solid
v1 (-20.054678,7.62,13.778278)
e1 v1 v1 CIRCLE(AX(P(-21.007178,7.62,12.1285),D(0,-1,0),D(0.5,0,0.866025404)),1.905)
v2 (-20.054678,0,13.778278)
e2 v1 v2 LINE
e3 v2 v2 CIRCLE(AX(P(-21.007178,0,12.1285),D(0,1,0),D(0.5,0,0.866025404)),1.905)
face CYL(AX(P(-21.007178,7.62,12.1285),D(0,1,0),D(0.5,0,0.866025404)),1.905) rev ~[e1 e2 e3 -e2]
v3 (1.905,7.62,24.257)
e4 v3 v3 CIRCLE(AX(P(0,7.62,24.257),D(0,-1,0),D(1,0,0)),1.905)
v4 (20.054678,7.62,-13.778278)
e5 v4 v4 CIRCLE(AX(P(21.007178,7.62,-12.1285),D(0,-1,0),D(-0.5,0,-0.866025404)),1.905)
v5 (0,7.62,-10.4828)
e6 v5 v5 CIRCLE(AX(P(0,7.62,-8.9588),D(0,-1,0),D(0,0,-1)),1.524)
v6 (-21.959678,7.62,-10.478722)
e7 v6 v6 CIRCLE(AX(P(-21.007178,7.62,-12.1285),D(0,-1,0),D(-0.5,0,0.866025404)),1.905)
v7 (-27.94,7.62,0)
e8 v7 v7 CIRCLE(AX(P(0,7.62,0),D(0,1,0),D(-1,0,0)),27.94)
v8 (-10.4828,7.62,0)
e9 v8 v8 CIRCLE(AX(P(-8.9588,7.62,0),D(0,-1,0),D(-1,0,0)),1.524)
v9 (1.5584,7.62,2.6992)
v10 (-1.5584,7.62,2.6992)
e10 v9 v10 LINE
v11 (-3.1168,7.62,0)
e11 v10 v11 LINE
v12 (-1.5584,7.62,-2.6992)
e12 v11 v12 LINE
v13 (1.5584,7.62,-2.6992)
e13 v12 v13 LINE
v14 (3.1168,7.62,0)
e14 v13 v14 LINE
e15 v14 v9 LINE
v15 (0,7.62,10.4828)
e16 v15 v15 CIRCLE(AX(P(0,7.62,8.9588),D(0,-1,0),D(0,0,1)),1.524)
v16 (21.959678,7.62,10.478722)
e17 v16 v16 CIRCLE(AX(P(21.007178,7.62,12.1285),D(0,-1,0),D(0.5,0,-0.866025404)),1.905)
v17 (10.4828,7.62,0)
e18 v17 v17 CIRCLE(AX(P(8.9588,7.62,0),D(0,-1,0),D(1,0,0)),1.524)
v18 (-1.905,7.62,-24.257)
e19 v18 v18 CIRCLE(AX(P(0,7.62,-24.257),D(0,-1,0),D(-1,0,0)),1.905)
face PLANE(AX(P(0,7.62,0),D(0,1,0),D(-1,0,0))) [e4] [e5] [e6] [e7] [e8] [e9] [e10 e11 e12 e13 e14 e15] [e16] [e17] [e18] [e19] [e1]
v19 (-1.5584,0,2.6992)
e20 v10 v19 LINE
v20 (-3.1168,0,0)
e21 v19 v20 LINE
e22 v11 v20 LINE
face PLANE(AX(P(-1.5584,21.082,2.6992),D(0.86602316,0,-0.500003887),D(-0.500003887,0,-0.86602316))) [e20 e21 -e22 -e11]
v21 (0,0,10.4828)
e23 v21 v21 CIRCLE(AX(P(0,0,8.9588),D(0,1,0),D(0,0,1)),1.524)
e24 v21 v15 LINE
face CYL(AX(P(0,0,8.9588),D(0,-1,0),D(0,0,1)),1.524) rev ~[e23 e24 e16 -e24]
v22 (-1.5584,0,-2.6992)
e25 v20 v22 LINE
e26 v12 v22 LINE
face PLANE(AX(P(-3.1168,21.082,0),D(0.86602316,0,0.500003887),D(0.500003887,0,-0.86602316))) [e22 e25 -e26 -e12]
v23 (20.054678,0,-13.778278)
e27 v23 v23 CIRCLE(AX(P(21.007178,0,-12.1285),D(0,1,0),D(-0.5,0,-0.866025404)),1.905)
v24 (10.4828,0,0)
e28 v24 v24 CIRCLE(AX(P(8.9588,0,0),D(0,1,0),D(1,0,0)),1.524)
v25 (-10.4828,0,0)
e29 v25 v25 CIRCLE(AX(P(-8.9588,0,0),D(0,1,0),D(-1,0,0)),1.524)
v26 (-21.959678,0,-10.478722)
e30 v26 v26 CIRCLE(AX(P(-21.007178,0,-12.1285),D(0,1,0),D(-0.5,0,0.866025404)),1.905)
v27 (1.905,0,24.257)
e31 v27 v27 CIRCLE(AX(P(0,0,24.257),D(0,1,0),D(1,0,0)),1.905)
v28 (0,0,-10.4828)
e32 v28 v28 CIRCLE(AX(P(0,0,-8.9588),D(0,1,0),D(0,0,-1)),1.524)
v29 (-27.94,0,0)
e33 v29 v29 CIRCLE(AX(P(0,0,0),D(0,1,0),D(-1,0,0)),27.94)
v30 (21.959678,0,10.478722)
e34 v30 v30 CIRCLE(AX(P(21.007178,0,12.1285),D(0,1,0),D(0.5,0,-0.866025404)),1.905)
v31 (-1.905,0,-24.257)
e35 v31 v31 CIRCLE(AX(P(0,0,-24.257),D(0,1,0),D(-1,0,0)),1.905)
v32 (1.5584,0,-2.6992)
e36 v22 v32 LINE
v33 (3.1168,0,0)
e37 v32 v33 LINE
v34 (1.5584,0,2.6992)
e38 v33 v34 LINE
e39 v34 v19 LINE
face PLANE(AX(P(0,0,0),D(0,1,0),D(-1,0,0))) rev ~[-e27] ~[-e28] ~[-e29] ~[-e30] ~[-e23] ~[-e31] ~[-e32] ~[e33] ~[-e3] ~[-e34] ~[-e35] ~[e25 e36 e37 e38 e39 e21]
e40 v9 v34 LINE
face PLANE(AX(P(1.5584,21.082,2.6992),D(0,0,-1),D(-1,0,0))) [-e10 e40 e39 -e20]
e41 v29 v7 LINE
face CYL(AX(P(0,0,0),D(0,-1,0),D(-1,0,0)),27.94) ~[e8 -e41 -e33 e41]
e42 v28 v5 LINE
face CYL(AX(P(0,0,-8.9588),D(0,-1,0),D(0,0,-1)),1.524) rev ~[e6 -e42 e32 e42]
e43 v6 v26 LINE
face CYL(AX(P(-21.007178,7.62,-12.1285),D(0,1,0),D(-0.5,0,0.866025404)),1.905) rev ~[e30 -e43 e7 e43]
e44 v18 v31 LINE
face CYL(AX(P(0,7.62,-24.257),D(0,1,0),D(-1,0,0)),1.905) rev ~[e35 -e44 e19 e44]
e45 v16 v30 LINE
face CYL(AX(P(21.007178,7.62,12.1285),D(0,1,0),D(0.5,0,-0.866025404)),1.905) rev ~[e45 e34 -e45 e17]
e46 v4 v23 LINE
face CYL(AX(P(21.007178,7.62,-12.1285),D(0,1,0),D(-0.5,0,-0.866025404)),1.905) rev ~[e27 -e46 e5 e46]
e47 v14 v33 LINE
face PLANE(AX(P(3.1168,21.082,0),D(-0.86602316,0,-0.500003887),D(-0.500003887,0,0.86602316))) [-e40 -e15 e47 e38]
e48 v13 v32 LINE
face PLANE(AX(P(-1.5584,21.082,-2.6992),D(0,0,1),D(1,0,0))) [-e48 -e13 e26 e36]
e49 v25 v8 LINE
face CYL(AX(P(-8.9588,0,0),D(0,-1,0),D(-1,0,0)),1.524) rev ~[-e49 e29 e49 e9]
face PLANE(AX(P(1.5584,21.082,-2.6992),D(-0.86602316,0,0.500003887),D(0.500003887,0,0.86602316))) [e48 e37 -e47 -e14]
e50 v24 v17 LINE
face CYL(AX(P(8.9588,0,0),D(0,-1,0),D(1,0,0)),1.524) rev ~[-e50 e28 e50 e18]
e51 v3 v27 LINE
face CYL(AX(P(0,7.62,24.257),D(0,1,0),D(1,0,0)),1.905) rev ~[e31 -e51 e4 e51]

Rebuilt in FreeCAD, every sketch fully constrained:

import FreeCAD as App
import Part
import Sketcher
Q = App.Units.Quantity

doc = App.newDocument("Part")
body = doc.addObject("PartDesign::Body", "Body")

# Sketch on XZ plane
sketch1 = body.newObject("Sketcher::SketchObject", "Sketch")
sketch1.AttachmentSupport = (doc.getObject("XZ_Plane"), [""])
sketch1.MapMode = "FlatFace"
sketch1.addGeometry(Part.Circle(App.Vector(0, 0, 0), App.Vector(0, 0, 1), 28), False)
sketch1.addConstraint(Sketcher.Constraint("Coincident", 0, 3, -1, 1))
sketch1.addConstraint(Sketcher.Constraint("Diameter", 0, Q("2.2 in")))
pad1 = body.newObject("PartDesign::Pad", "Pad")
pad1.Profile = sketch1
pad1.Length = Q("0.3 in")
pad1.Reversed = True

# Sketch on XZ plane
sketch2 = body.newObject("Sketcher::SketchObject", "Sketch001")
sketch2.AttachmentSupport = (doc.getObject("XZ_Plane"), [""])
sketch2.MapMode = "FlatFace"
sketch2.AttachmentOffset = App.Placement(App.Vector(0, 0, -0.83 * 25.4), App.Rotation())
sketch2.addGeometry(Part.LineSegment(App.Vector(-1.6, -2.7, 0), App.Vector(-3.1, 0, 0)), False)
sketch2.addGeometry(Part.LineSegment(App.Vector(-3.1, 0, 0), App.Vector(-1.6, 2.7, 0)), False)
sketch2.addGeometry(Part.LineSegment(App.Vector(-1.6, 2.7, 0), App.Vector(1.6, 2.7, 0)), False)
sketch2.addGeometry(Part.LineSegment(App.Vector(1.6, 2.7, 0), App.Vector(3.1, 0, 0)), False)
sketch2.addGeometry(Part.LineSegment(App.Vector(3.1, 0, 0), App.Vector(1.6, -2.7, 0)), False)
sketch2.addGeometry(Part.LineSegment(App.Vector(1.6, -2.7, 0), App.Vector(-1.6, -2.7, 0)), False)
sketch2.addConstraint(Sketcher.Constraint("Coincident", 0, 2, 1, 1))
sketch2.addConstraint(Sketcher.Constraint("Coincident", 1, 2, 2, 1))
sketch2.addConstraint(Sketcher.Constraint("Coincident", 2, 2, 3, 1))
sketch2.addConstraint(Sketcher.Constraint("Coincident", 3, 2, 4, 1))
sketch2.addConstraint(Sketcher.Constraint("Coincident", 4, 2, 5, 1))
sketch2.addConstraint(Sketcher.Constraint("Coincident", 5, 2, 0, 1))
sketch2.addConstraint(Sketcher.Constraint("Horizontal", 2))
sketch2.addConstraint(Sketcher.Constraint("Horizontal", 5))
sketch2.addConstraint(Sketcher.Constraint("Symmetric", 0, 2, 3, 2, -1, 1))
sketch2.addConstraint(Sketcher.Constraint("Symmetric", 1, 2, 4, 2, -1, 1))
sketch2.addConstraint(Sketcher.Constraint("PointOnObject", 0, 2, -1))
sketch2.addConstraint(Sketcher.Constraint("Parallel", 0, 3))
sketch2.addConstraint(Sketcher.Constraint("Vertical", 2, 2, 4, 2))
sketch2.addConstraint(Sketcher.Constraint("Angle", 0, Q("120.0003 deg")))
sketch2.addConstraint(Sketcher.Constraint("DistanceX", 2, 1, 2, 2, Q("0.1227 in")))
sketch2.addConstraint(Sketcher.Constraint("Distance", 0, Q("0.1227 in")))
pocket1 = body.newObject("PartDesign::Pocket", "Pocket")
pocket1.Profile = sketch2
pocket1.Length = Q("1 in")
pocket1.Reversed = True

# Sketch on XZ plane
sketch3 = body.newObject("Sketcher::SketchObject", "Sketch002")
sketch3.AttachmentSupport = (doc.getObject("XZ_Plane"), [""])
sketch3.MapMode = "FlatFace"
sketch3.AttachmentOffset = App.Placement(App.Vector(0, 0, -0.3 * 25.4), App.Rotation())
sketch3.addGeometry(Part.Circle(App.Vector(0, 24.3, 0), App.Vector(0, 0, 1), 1.9), False)
sketch3.addConstraint(Sketcher.Constraint("PointOnObject", 0, 3, -2))
sketch3.addConstraint(Sketcher.Constraint("Diameter", 0, Q("0.15 in")))
sketch3.addConstraint(Sketcher.Constraint("DistanceY", -1, 1, 0, 3, Q("0.955 in")))
pocket2 = body.newObject("PartDesign::Pocket", "Pocket001")
pocket2.Profile = sketch3
pocket2.Length = Q("1 in")
pocket2.Reversed = True
doc.recompute()

polarpattern = body.newObject("PartDesign::PolarPattern", "PolarPattern")
polarpattern.Originals = [pocket2]
polarpattern.Axis = (doc.getObject("Y_Axis"), [""])
polarpattern.Angle = 360
polarpattern.Occurrences = 6
body.Tip = polarpattern

# Sketch on XZ plane
sketch4 = body.newObject("Sketcher::SketchObject", "Sketch003")
sketch4.AttachmentSupport = (doc.getObject("XZ_Plane"), [""])
sketch4.MapMode = "FlatFace"
sketch4.addGeometry(Part.Circle(App.Vector(9, 0, 0), App.Vector(0, 0, 1), 1.5), False)
sketch4.addConstraint(Sketcher.Constraint("PointOnObject", 0, 3, -1))
sketch4.addConstraint(Sketcher.Constraint("Diameter", 0, Q("0.12 in")))
sketch4.addConstraint(Sketcher.Constraint("DistanceX", -1, 1, 0, 3, Q("0.3527 in")))
pocket3 = body.newObject("PartDesign::Pocket", "Pocket002")
pocket3.Profile = sketch4
pocket3.Length = Q("1 in")
doc.recompute()

polarpattern2 = body.newObject("PartDesign::PolarPattern", "PolarPattern001")
polarpattern2.Originals = [pocket3]
polarpattern2.Axis = (doc.getObject("Y_Axis"), [""])
polarpattern2.Angle = 360
polarpattern2.Occurrences = 4
body.Tip = polarpattern2

doc.recompute()
